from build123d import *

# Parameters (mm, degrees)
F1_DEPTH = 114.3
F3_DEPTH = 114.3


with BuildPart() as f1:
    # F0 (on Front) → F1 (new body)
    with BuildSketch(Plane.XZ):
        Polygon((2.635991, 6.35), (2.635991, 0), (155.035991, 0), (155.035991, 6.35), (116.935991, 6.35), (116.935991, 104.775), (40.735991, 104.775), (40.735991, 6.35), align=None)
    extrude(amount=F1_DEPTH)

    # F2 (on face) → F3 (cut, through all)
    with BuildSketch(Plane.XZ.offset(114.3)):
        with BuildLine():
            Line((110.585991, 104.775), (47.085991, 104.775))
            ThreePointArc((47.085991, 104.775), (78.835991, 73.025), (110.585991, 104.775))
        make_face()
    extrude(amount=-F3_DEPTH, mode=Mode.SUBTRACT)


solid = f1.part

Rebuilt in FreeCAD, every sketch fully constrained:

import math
import FreeCAD as App
import Part
import Sketcher

V = App.Vector
Q = App.Units.Quantity

doc = App.newDocument("Part")
body = doc.addObject("PartDesign::Body", "Body")

# Sketch on XZ plane
sketch1 = doc.addObject("Sketcher::SketchObject", "Sketch")
body.addObject(sketch1)
sketch1.AttachmentSupport = (doc.XZ_Plane, [""])
sketch1.MapMode = "FlatFace"
sketch1.addGeometry(Part.LineSegment(V(3, 6, 0), V(3, 0, 0)), False)
sketch1.addGeometry(Part.LineSegment(V(3, 0, 0), V(155, 0, 0)), False)
sketch1.addGeometry(Part.LineSegment(V(155, 0, 0), V(155, 6, 0)), False)
sketch1.addGeometry(Part.LineSegment(V(155, 6, 0), V(117, 6, 0)), False)
sketch1.addGeometry(Part.LineSegment(V(117, 6, 0), V(117, 105, 0)), False)
sketch1.addGeometry(Part.LineSegment(V(117, 105, 0), V(41, 105, 0)), False)
sketch1.addGeometry(Part.LineSegment(V(41, 105, 0), V(41, 6, 0)), False)
sketch1.addGeometry(Part.LineSegment(V(41, 6, 0), V(3, 6, 0)), False)
sketch1.addConstraint(Sketcher.Constraint("Coincident", 0, 2, 1, 1))
sketch1.addConstraint(Sketcher.Constraint("Coincident", 1, 2, 2, 1))
sketch1.addConstraint(Sketcher.Constraint("Coincident", 2, 2, 3, 1))
sketch1.addConstraint(Sketcher.Constraint("Coincident", 3, 2, 4, 1))
sketch1.addConstraint(Sketcher.Constraint("Coincident", 4, 2, 5, 1))
sketch1.addConstraint(Sketcher.Constraint("Coincident", 5, 2, 6, 1))
sketch1.addConstraint(Sketcher.Constraint("Coincident", 6, 2, 7, 1))
sketch1.addConstraint(Sketcher.Constraint("Coincident", 7, 2, 0, 1))
sketch1.addConstraint(Sketcher.Constraint("Vertical", 0))
sketch1.addConstraint(Sketcher.Constraint("Horizontal", 1))
sketch1.addConstraint(Sketcher.Constraint("Vertical", 2))
sketch1.addConstraint(Sketcher.Constraint("Horizontal", 3))
sketch1.addConstraint(Sketcher.Constraint("Vertical", 4))
sketch1.addConstraint(Sketcher.Constraint("Horizontal", 5))
sketch1.addConstraint(Sketcher.Constraint("Vertical", 6))
sketch1.addConstraint(Sketcher.Constraint("Horizontal", 7))
sketch1.addConstraint(Sketcher.Constraint("PointOnObject", 0, 2, -1))
sketch1.addConstraint(Sketcher.Constraint("Horizontal", 3, 2, 6, 2))
sketch1.addConstraint(Sketcher.Constraint("Equal", 3, 7))
sketch1.addConstraint(Sketcher.Constraint("DistanceX", 1, 1, 1, 2, Q("6 in")))
sketch1.addConstraint(Sketcher.Constraint("DistanceX", 5, 2, 5, 1, Q("3 in")))
sketch1.addConstraint(Sketcher.Constraint("DistanceY", 0, 2, 0, 1, Q("0.25 in")))
sketch1.addConstraint(Sketcher.Constraint("DistanceY", 4, 1, 4, 2, Q("3.875 in")))
sketch1.addConstraint(Sketcher.Constraint("DistanceX", -1, 1, 0, 2, Q("2.635991 mm")))
pad1 = doc.addObject("PartDesign::Pad", "Pad")
body.addObject(pad1)
pad1.Profile = sketch1
pad1.Length = Q("4.5 in")

# Sketch on XZ plane
sketch2 = doc.addObject("Sketcher::SketchObject", "Sketch001")
body.addObject(sketch2)
sketch2.AttachmentSupport = (doc.XZ_Plane, [""])
sketch2.MapMode = "FlatFace"
sketch2.AttachmentOffset = App.Placement(V(0, 0, 4.5 * 25.4), App.Rotation())
sketch2.addGeometry(Part.LineSegment(V(111, 105, 0), V(47, 105, 0)), False)
sketch2.addGeometry(Part.ArcOfCircle(Part.Circle(V(79, 105, 0), V(0, 0, 1), 32), math.radians(180), math.radians(360)), False)
sketch2.addConstraint(Sketcher.Constraint("Coincident", 0, 1, 1, 2))
sketch2.addConstraint(Sketcher.Constraint("Coincident", 1, 1, 0, 2))
sketch2.addConstraint(Sketcher.Constraint("Horizontal", 0))
sketch2.addConstraint(Sketcher.Constraint("Horizontal", 1, 3, 0, 1))
sketch2.addConstraint(Sketcher.Constraint("Radius", 1, Q("1.25 in")))
sketch2.addConstraint(Sketcher.Constraint("DistanceY", -1, 1, 1, 3, Q("4.125 in")))
sketch2.addConstraint(Sketcher.Constraint("DistanceX", -1, 1, 1, 3, Q("78.835991 mm")))
pocket1 = doc.addObject("PartDesign::Pocket", "Pocket")
body.addObject(pocket1)
pocket1.Profile = sketch2
pocket1.Type = "ThroughAll"

doc.recompute()
